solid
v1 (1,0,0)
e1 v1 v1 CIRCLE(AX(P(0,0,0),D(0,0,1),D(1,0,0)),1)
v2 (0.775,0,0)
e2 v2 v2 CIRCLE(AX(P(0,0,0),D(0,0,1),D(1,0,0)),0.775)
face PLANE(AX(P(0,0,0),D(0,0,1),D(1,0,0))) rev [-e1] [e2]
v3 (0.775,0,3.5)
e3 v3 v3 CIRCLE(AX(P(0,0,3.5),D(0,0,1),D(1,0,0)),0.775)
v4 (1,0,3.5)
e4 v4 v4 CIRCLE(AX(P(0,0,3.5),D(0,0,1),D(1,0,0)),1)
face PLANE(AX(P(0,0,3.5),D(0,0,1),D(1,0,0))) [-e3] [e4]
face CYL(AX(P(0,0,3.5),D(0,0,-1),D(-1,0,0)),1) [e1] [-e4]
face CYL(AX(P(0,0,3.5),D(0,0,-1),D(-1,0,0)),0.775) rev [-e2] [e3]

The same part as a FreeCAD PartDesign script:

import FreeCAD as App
import Part
import Sketcher

V = App.Vector
Q = App.Units.Quantity

doc = App.newDocument("Part")
params = doc.addObject("Spreadsheet::Sheet", "Params")
for row, (alias, value) in enumerate([
    ("sketch1_diameter", "2 mm"),
    ("sketch1_diameter2", "1.55 mm"),
    ("pad1_length", "3.5 mm"),
], start=1):
    params.set(f"A{row}", alias)
    params.set(f"B{row}", "=" + value)
    params.setAlias(f"B{row}", alias)

body = doc.addObject("PartDesign::Body", "Body")

sketch1 = body.newObject("Sketcher::SketchObject", "Sketch")
sketch1.AttachmentSupport = (doc.getObject("XY_Plane"), [""])
sketch1.MapMode = "FlatFace"
sketch1.addGeometry([
    Part.Circle(V(0, 0, 0), V(0, 0, 1), 1),
    Part.Circle(V(0, 0, 0), V(0, 0, 1), 0.775),
], False)
sketch1.addConstraint([
    Sketcher.Constraint("Coincident", 0, 3, -1, 1),
    Sketcher.Constraint("Coincident", 1, 3, -1, 1),
    Sketcher.Constraint("Diameter", 0, Q("2 mm")),
    Sketcher.Constraint("Diameter", 1, Q("1.55 mm")),
])
sketch1.setExpression("Constraints[2]", "Params.sketch1_diameter")
sketch1.setExpression("Constraints[3]", "Params.sketch1_diameter2")
pad1 = body.newObject("PartDesign::Pad", "Pad")
pad1.Profile = sketch1
pad1.setExpression("Length", "Params.pad1_length")

doc.recompute()
